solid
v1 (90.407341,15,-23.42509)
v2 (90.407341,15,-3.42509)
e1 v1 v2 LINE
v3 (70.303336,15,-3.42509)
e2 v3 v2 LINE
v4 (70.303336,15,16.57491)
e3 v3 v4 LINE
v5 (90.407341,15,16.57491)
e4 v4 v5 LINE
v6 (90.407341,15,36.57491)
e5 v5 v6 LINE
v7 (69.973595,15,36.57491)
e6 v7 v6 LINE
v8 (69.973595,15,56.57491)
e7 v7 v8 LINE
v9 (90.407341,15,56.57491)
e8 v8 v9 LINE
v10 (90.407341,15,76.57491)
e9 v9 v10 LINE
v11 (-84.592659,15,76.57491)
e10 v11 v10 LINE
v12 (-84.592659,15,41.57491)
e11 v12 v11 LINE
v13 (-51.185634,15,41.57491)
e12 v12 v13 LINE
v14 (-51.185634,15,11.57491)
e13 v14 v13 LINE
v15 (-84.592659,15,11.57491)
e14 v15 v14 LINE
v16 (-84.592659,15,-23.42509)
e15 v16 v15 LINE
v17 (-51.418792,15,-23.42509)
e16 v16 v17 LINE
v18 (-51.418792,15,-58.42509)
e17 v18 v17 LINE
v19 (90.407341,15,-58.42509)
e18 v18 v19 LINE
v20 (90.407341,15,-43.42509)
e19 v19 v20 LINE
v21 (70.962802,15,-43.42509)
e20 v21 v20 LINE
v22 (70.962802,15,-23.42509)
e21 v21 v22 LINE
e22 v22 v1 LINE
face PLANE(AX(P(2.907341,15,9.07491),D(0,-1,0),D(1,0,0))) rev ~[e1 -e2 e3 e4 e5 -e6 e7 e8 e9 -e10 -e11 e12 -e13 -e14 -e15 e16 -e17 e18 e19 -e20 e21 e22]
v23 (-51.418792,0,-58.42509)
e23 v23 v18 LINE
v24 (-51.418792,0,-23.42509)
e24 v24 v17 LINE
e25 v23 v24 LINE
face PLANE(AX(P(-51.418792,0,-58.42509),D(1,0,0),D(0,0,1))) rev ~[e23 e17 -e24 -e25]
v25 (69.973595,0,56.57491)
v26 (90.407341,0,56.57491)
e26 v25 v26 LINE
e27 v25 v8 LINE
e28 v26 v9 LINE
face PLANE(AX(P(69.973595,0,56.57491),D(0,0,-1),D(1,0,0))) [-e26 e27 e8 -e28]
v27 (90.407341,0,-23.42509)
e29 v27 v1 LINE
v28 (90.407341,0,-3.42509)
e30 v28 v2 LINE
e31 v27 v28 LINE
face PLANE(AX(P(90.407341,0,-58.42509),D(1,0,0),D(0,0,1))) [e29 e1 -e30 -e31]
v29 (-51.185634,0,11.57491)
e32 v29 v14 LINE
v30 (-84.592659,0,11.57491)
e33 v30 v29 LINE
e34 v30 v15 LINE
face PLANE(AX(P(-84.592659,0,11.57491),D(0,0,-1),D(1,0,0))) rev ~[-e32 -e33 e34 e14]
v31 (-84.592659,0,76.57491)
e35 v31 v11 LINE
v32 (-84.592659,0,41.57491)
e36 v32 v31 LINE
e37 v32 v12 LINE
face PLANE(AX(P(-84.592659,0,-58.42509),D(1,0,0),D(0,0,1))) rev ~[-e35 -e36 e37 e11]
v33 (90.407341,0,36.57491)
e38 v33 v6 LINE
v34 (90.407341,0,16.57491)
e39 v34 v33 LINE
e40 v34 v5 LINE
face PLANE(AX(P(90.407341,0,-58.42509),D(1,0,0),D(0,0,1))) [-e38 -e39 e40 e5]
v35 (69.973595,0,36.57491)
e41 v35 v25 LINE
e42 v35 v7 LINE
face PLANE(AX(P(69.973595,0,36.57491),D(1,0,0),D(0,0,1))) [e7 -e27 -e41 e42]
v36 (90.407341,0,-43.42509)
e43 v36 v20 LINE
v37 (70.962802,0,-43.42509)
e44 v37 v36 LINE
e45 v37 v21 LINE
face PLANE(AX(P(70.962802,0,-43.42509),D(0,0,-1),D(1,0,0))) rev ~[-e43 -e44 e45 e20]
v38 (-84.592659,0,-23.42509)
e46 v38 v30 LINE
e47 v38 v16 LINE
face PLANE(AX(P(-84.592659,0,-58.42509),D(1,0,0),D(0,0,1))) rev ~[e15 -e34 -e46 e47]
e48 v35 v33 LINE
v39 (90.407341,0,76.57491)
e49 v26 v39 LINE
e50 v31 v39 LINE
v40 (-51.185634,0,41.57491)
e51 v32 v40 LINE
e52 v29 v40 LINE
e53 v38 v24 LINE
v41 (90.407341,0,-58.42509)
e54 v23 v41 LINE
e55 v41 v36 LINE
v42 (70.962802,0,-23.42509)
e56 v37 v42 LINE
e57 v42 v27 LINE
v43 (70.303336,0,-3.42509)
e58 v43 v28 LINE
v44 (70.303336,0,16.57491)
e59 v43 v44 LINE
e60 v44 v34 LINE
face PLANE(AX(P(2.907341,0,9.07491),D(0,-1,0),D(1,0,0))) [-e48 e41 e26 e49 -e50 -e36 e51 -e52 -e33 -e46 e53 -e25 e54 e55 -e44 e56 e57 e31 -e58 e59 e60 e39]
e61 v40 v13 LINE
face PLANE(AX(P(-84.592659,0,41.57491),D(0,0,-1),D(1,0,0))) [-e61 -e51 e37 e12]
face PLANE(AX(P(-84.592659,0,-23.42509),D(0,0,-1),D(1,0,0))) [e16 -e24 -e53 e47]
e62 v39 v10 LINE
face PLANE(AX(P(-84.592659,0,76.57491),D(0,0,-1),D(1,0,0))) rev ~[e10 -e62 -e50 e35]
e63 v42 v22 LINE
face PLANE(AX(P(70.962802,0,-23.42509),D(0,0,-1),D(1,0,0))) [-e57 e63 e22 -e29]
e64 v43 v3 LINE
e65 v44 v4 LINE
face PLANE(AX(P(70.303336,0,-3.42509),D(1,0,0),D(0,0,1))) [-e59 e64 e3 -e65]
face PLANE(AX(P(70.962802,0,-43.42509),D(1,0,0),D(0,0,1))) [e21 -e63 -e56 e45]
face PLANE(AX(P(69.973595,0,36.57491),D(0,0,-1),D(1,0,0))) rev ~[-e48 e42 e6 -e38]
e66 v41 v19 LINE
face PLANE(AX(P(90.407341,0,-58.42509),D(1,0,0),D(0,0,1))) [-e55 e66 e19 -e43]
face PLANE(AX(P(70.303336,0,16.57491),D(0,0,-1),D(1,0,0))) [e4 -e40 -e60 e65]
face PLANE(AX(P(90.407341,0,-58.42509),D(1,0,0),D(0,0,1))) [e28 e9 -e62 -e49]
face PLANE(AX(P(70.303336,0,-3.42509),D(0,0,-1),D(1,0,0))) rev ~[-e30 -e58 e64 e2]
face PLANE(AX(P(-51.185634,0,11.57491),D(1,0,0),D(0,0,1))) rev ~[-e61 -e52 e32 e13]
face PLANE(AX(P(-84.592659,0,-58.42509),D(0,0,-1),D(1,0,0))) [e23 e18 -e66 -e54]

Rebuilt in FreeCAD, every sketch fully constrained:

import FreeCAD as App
import Part
import Sketcher

V = App.Vector


def add_polygon(sketch, points):
    """Adds a closed chain of lines whose ends are joined by coincident constraints."""
    first, n = sketch.GeometryCount, len(points)
    for a, b in zip(points, points[1:] + points[:1]):
        sketch.addGeometry(Part.LineSegment(App.Vector(*a, 0), App.Vector(*b, 0)), False)
    for i in range(n):
        sketch.addConstraint(Sketcher.Constraint("Coincident", first + i, 2, first + (i + 1) % n, 1))

doc = App.newDocument("Part")
body = doc.addObject("PartDesign::Body", "Body")

sketch1 = body.newObject("Sketcher::SketchObject", "Sketch")
sketch1.AttachmentSupport = (doc.getObject("XZ_Plane"), [""])
sketch1.MapMode = "FlatFace"
add_polygon(sketch1, [(-84.592659, 76.57491), (-84.592659, -58.42509), (90.407341, -58.42509), (90.407341, 76.57491)])
sketch1.addConstraint(Sketcher.Constraint("Vertical", 0))
sketch1.addConstraint(Sketcher.Constraint("Horizontal", 1))
sketch1.addConstraint(Sketcher.Constraint("Vertical", 2))
sketch1.addConstraint(Sketcher.Constraint("Horizontal", 3))
sketch1.addConstraint(Sketcher.Constraint("DistanceX", 1, 1, 1, 2, 175.0))
sketch1.addConstraint(Sketcher.Constraint("DistanceY", 0, 2, 0, 1, 135.0))
sketch1.addConstraint(Sketcher.Constraint("DistanceX", 0, 2, -1, 1, 84.592659))
sketch1.addConstraint(Sketcher.Constraint("DistanceY", 0, 2, -1, 1, 58.42509))
pad1 = body.newObject("PartDesign::Pad", "Pad")
pad1.Profile = sketch1
pad1.Length = 15
pad1.Reversed = True

sketch2 = body.newObject("Sketcher::SketchObject", "Sketch001")
sketch2.AttachmentSupport = (doc.getObject("XZ_Plane"), [""])
sketch2.MapMode = "FlatFace"
add_polygon(sketch2, [(-84.592659, -23.42509), (-84.592659, -58.42509), (-51.418792, -58.42509), (-51.418792, -23.42509)])
add_polygon(sketch2, [(-84.592659, 41.57491), (-84.592659, 11.57491), (-51.185634, 11.57491), (-51.185634, 41.57491)])
sketch2.addConstraint(Sketcher.Constraint("Vertical", 0))
sketch2.addConstraint(Sketcher.Constraint("Horizontal", 1))
sketch2.addConstraint(Sketcher.Constraint("Vertical", 2))
sketch2.addConstraint(Sketcher.Constraint("Horizontal", 3))
sketch2.addConstraint(Sketcher.Constraint("Vertical", 4))
sketch2.addConstraint(Sketcher.Constraint("Horizontal", 5))
sketch2.addConstraint(Sketcher.Constraint("Vertical", 6))
sketch2.addConstraint(Sketcher.Constraint("Horizontal", 7))
sketch2.addConstraint(Sketcher.Constraint("Vertical", 3, 2, 4, 2))
sketch2.addConstraint(Sketcher.Constraint("DistanceY", 0, 2, 0, 1, 35.0))
sketch2.addConstraint(Sketcher.Constraint("DistanceY", 4, 2, 4, 1, 30.0))
sketch2.addConstraint(Sketcher.Constraint("DistanceY", 3, 2, 4, 2, 35.0))
sketch2.addConstraint(Sketcher.Constraint("DistanceX", 1, 1, 1, 2, 33.173866))
sketch2.addConstraint(Sketcher.Constraint("DistanceX", 5, 1, 5, 2, 33.407025))
sketch2.addConstraint(Sketcher.Constraint("DistanceX", 0, 2, -1, 1, 84.592659))
sketch2.addConstraint(Sketcher.Constraint("DistanceY", 0, 2, -1, 1, 58.42509))
pocket1 = body.newObject("PartDesign::Pocket", "Pocket")
pocket1.Profile = sketch2
pocket1.Type = "ThroughAll"

sketch3 = body.newObject("Sketcher::SketchObject", "Sketch002")
sketch3.AttachmentSupport = (doc.getObject("XZ_Plane"), [""])
sketch3.MapMode = "FlatFace"
add_polygon(sketch3, [(69.973595, 56.57491), (69.973595, 36.57491), (90.407341, 36.57491), (90.407341, 56.57491)])
add_polygon(sketch3, [(70.303336, 16.57491), (70.303336, -3.42509), (90.407341, -3.42509), (90.407341, 16.57491)])
add_polygon(sketch3, [(70.962802, -23.42509), (70.962802, -43.42509), (90.407341, -43.42509), (90.407341, -23.42509)])
sketch3.addConstraint(Sketcher.Constraint("Vertical", 0))
sketch3.addConstraint(Sketcher.Constraint("Horizontal", 1))
sketch3.addConstraint(Sketcher.Constraint("Vertical", 2))
sketch3.addConstraint(Sketcher.Constraint("Horizontal", 3))
sketch3.addConstraint(Sketcher.Constraint("Vertical", 4))
sketch3.addConstraint(Sketcher.Constraint("Horizontal", 5))
sketch3.addConstraint(Sketcher.Constraint("Vertical", 6))
sketch3.addConstraint(Sketcher.Constraint("Horizontal", 7))
sketch3.addConstraint(Sketcher.Constraint("Vertical", 8))
sketch3.addConstraint(Sketcher.Constraint("Horizontal", 9))
sketch3.addConstraint(Sketcher.Constraint("Vertical", 10))
sketch3.addConstraint(Sketcher.Constraint("Horizontal", 11))
sketch3.addConstraint(Sketcher.Constraint("Vertical", 2, 2, 5, 2))
sketch3.addConstraint(Sketcher.Constraint("Vertical", 6, 2, 9, 2))
sketch3.addConstraint(Sketcher.Constraint("Equal", 2, 4))
sketch3.addConstraint(Sketcher.Constraint("Equal", 6, 8))
sketch3.addConstraint(Sketcher.Constraint("DistanceY", 0, 2, 0, 1, 20.0))
sketch3.addConstraint(Sketcher.Constraint("DistanceY", 4, 2, 0, 2, 40.0))
sketch3.addConstraint(Sketcher.Constraint("DistanceY", 8, 2, 4, 2, 40.0))
sketch3.addConstraint(Sketcher.Constraint("DistanceX", 9, 1, 9, 2, 19.44454))
sketch3.addConstraint(Sketcher.Constraint("DistanceX", -1, 1, 8, 2, 70.962802))
sketch3.addConstraint(Sketcher.Constraint("DistanceX", 1, 1, 1, 2, 20.433746))
sketch3.addConstraint(Sketcher.Constraint("DistanceX", 5, 1, 5, 2, 20.104006))
sketch3.addConstraint(Sketcher.Constraint("DistanceY", -1, 1, 0, 2, 36.57491))
pocket2 = body.newObject("PartDesign::Pocket", "Pocket001")
pocket2.Profile = sketch3
pocket2.Type = "ThroughAll"

doc.recompute()
